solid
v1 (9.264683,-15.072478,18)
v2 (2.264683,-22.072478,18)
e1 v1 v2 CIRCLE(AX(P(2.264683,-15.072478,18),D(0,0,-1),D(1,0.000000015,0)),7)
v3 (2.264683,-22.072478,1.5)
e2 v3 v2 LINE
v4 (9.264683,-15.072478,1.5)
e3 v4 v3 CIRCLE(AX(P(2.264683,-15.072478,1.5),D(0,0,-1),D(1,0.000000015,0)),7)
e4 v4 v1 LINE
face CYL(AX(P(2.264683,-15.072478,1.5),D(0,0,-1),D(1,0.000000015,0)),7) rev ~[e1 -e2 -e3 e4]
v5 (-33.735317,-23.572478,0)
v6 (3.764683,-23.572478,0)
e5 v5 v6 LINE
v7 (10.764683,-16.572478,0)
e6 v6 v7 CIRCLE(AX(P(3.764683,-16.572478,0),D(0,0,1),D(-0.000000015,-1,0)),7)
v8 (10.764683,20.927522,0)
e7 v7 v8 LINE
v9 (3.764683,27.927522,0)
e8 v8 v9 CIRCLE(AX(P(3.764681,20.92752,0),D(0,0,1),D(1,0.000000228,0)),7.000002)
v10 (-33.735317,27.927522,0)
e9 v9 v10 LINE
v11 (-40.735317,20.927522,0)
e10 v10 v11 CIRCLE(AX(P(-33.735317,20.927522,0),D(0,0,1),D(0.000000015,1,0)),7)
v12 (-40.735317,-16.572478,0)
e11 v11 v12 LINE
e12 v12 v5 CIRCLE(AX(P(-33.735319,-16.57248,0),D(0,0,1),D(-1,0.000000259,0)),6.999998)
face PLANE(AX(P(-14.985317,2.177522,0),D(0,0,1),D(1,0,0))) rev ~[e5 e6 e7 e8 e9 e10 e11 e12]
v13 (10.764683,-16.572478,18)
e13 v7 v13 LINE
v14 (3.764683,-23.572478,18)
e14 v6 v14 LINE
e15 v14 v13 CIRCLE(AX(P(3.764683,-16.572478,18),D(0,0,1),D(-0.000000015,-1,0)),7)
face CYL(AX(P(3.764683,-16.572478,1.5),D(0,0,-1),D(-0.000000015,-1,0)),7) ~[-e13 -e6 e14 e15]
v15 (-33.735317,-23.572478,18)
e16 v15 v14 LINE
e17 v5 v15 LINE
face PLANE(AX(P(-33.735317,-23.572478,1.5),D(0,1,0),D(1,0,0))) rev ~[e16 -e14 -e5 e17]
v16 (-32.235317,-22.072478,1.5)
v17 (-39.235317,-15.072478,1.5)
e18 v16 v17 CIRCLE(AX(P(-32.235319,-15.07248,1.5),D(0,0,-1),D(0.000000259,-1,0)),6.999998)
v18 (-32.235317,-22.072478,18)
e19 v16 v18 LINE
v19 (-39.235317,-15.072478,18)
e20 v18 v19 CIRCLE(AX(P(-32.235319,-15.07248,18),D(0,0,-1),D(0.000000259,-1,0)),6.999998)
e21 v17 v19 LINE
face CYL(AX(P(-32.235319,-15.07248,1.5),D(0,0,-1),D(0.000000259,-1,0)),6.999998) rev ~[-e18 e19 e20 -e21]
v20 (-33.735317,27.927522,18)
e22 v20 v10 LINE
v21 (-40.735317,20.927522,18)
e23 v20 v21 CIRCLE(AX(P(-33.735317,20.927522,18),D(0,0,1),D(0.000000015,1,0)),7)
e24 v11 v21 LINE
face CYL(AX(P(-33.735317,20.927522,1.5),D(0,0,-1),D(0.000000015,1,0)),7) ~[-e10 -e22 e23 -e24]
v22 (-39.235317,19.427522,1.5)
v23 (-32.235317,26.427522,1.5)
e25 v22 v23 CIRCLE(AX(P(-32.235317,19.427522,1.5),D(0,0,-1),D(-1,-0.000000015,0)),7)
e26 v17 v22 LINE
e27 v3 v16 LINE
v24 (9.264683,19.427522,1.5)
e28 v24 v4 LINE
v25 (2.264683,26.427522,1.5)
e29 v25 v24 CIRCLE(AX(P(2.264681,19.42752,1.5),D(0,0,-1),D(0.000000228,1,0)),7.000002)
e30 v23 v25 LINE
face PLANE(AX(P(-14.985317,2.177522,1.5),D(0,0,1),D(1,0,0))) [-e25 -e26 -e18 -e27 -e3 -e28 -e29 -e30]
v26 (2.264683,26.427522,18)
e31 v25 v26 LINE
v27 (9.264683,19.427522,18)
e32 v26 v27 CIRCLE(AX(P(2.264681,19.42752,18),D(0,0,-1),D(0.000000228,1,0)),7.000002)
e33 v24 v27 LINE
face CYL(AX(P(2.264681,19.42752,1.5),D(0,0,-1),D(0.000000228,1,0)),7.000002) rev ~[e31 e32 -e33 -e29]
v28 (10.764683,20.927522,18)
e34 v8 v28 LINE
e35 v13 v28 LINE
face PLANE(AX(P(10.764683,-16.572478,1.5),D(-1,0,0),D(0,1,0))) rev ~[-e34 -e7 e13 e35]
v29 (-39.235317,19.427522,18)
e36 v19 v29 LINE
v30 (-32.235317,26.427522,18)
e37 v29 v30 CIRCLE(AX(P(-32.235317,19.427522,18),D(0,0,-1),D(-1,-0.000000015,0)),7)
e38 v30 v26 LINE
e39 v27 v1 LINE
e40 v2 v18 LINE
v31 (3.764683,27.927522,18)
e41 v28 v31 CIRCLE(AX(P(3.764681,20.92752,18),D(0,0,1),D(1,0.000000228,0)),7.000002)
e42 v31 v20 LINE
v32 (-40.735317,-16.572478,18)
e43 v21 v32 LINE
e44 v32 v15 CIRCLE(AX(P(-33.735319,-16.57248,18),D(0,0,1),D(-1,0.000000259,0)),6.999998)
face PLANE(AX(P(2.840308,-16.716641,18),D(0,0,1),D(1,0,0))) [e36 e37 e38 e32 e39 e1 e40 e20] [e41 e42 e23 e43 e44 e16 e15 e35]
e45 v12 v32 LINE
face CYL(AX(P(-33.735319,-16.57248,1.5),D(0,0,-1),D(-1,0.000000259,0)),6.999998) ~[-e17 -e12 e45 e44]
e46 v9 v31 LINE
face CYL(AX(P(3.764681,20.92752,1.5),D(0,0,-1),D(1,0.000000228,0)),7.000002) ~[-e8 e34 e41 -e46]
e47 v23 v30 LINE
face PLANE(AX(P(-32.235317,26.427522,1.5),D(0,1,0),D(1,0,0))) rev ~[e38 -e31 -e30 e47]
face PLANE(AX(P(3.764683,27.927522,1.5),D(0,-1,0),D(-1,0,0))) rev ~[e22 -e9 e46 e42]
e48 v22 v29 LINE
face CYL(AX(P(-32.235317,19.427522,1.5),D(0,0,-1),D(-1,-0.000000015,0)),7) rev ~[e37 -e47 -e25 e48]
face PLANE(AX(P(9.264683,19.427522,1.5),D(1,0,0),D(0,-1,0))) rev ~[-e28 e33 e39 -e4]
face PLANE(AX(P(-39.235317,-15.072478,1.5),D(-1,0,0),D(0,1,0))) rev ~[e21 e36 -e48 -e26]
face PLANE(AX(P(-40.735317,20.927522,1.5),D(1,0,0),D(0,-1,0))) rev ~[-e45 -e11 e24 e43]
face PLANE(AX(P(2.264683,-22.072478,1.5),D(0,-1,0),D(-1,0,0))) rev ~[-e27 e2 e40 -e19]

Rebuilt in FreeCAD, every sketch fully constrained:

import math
import FreeCAD as App
import Part
import Sketcher

V = App.Vector

doc = App.newDocument("Part")
params = doc.addObject("Spreadsheet::Sheet", "Params")
for row, (alias, value) in enumerate([
    ("sketch1_radius", "7 mm"),
    ("sketch1_width", "37.5 mm"),
    ("pad1_length", "1.5 mm"),
    ("sketch2_radius", "7 mm"),
    ("sketch2_width", "37.5 mm"),
    ("sketch2_width2", "34.5 mm"),
    ("pad2_length", "16.5 mm"),
], start=1):
    params.set(f"A{row}", alias)
    params.set(f"B{row}", "=" + value)
    params.setAlias(f"B{row}", alias)

body = doc.addObject("PartDesign::Body", "Body")

sketch1 = body.newObject("Sketcher::SketchObject", "Sketch")
sketch1.AttachmentSupport = (doc.getObject("XY_Plane"), [""])
sketch1.MapMode = "FlatFace"
sketch1.addGeometry([
    Part.LineSegment(V(3.764683, 27.927522, 0), V(-33.735317, 27.927522, 0)),
    Part.ArcOfCircle(Part.Circle(V(-33.735317, 20.927522, 0), V(0, 0, 1), 7), math.radians(89.999999), math.radians(180.000001)),
    Part.LineSegment(V(-40.735317, 20.927522, 0), V(-40.735317, -16.572478, 0)),
    Part.ArcOfCircle(Part.Circle(V(-33.735319, -16.57248, 0), V(0, 0, 1), 6.999998), math.radians(179.999985), math.radians(270.000015)),
    Part.LineSegment(V(-33.735317, -23.572478, 0), V(3.764683, -23.572478, 0)),
    Part.ArcOfCircle(Part.Circle(V(3.764683, -16.572478, 0), V(0, 0, 1), 7), math.radians(-90.000001), math.radians(0.000001)),
    Part.LineSegment(V(10.764683, -16.572478, 0), V(10.764683, 20.927522, 0)),
    Part.ArcOfCircle(Part.Circle(V(3.764681, 20.92752, 0), V(0, 0, 1), 7.000002), math.radians(0.000013), math.radians(89.999987)),
], False)
sketch1.addConstraint([
    Sketcher.Constraint("Tangent", 0, 2, 1, 1),
    Sketcher.Constraint("Tangent", 1, 2, 2, 1),
    Sketcher.Constraint("Tangent", 2, 2, 3, 1),
    Sketcher.Constraint("Tangent", 3, 2, 4, 1),
    Sketcher.Constraint("Tangent", 4, 2, 5, 1),
    Sketcher.Constraint("Tangent", 5, 2, 6, 1),
    Sketcher.Constraint("Tangent", 6, 2, 7, 1),
    Sketcher.Constraint("Tangent", 7, 2, 0, 1),
    Sketcher.Constraint("Horizontal", 0),
    Sketcher.Constraint("Vertical", 2),
    Sketcher.Constraint("Horizontal", 4),
    Sketcher.Constraint("Vertical", 6),
    Sketcher.Constraint("Equal", 1, 3),
    Sketcher.Constraint("Equal", 3, 5),
    Sketcher.Constraint("Equal", 5, 7),
    Sketcher.Constraint("Equal", 4, 2),
    Sketcher.Constraint("Radius", 1, 7.0),
    Sketcher.Constraint("DistanceX", 0, 2, 0, 1, 37.5),
    Sketcher.Constraint("DistanceX", 3, 3, -1, 1, 33.735319),
    Sketcher.Constraint("DistanceY", 3, 3, -1, 1, 16.57248),
])
sketch1.setExpression("Constraints[16]", "Params.sketch1_radius")
sketch1.setExpression("Constraints[17]", "Params.sketch1_width")
pad1 = body.newObject("PartDesign::Pad", "Pad")
pad1.Profile = sketch1
pad1.setExpression("Length", "Params.pad1_length")

sketch2 = body.newObject("Sketcher::SketchObject", "Sketch001")
sketch2.AttachmentSupport = (doc.getObject("XY_Plane"), [""])
sketch2.MapMode = "FlatFace"
sketch2.AttachmentOffset = App.Placement(V(0, 0, 1.5), App.Rotation())
sketch2.addGeometry([
    Part.ArcOfCircle(Part.Circle(V(-33.735317, 20.927522, 0), V(0, 0, 1), 7), math.radians(89.999999), math.radians(180.000001)),
    Part.LineSegment(V(-40.735317, 20.927522, 0), V(-40.735317, -16.572478, 0)),
    Part.ArcOfCircle(Part.Circle(V(-33.735319, -16.57248, 0), V(0, 0, 1), 6.999998), math.radians(179.999985), math.radians(270.000015)),
    Part.LineSegment(V(-33.735317, -23.572478, 0), V(3.764683, -23.572478, 0)),
    Part.ArcOfCircle(Part.Circle(V(3.764683, -16.572478, 0), V(0, 0, 1), 7), math.radians(-90.000001), math.radians(0.000001)),
    Part.LineSegment(V(10.764683, -16.572478, 0), V(10.764683, 20.927522, 0)),
    Part.ArcOfCircle(Part.Circle(V(3.764681, 20.92752, 0), V(0, 0, 1), 7.000002), math.radians(0.000013), math.radians(89.999987)),
    Part.LineSegment(V(3.764683, 27.927522, 0), V(-33.735317, 27.927522, 0)),
    Part.ArcOfCircle(Part.Circle(V(2.264683, -15.072478, 0), V(0, 0, 1), 7), math.radians(-90.000001), math.radians(0.000001)),
    Part.LineSegment(V(2.264683, -22.072478, 0), V(-32.235317, -22.072478, 0)),
    Part.ArcOfCircle(Part.Circle(V(-32.235319, -15.07248, 0), V(0, 0, 1), 6.999998), math.radians(179.999985), math.radians(270.000015)),
    Part.LineSegment(V(-39.235317, -15.072478, 0), V(-39.235317, 19.427522, 0)),
    Part.ArcOfCircle(Part.Circle(V(-32.235317, 19.427522, 0), V(0, 0, 1), 7), math.radians(89.999999), math.radians(180.000001)),
    Part.LineSegment(V(-32.235317, 26.427522, 0), V(2.264683, 26.427522, 0)),
    Part.ArcOfCircle(Part.Circle(V(2.264681, 19.42752, 0), V(0, 0, 1), 7.000002), math.radians(0.000013), math.radians(89.999987)),
    Part.LineSegment(V(9.264683, 19.427522, 0), V(9.264683, -15.072478, 0)),
], False)
sketch2.addConstraint([
    Sketcher.Constraint("Tangent", 0, 2, 1, 1),
    Sketcher.Constraint("Tangent", 1, 2, 2, 1),
    Sketcher.Constraint("Tangent", 2, 2, 3, 1),
    Sketcher.Constraint("Tangent", 3, 2, 4, 1),
    Sketcher.Constraint("Tangent", 4, 2, 5, 1),
    Sketcher.Constraint("Tangent", 5, 2, 6, 1),
    Sketcher.Constraint("Tangent", 6, 2, 7, 1),
    Sketcher.Constraint("Tangent", 7, 2, 0, 1),
    Sketcher.Constraint("Tangent", 8, 1, 9, 1),
    Sketcher.Constraint("Tangent", 9, 2, 10, 2),
    Sketcher.Constraint("Tangent", 10, 1, 11, 1),
    Sketcher.Constraint("Tangent", 11, 2, 12, 2),
    Sketcher.Constraint("Tangent", 12, 1, 13, 1),
    Sketcher.Constraint("Tangent", 13, 2, 14, 2),
    Sketcher.Constraint("Tangent", 14, 1, 15, 1),
    Sketcher.Constraint("Tangent", 15, 2, 8, 2),
    Sketcher.Constraint("Vertical", 1),
    Sketcher.Constraint("Horizontal", 3),
    Sketcher.Constraint("Vertical", 5),
    Sketcher.Constraint("Horizontal", 7),
    Sketcher.Constraint("Horizontal", 9),
    Sketcher.Constraint("Vertical", 11),
    Sketcher.Constraint("Horizontal", 13),
    Sketcher.Constraint("Vertical", 15),
    Sketcher.Constraint("Equal", 0, 2),
    Sketcher.Constraint("Equal", 2, 4),
    Sketcher.Constraint("Equal", 4, 6),
    Sketcher.Constraint("Equal", 6, 8),
    Sketcher.Constraint("Equal", 8, 10),
    Sketcher.Constraint("Equal", 10, 12),
    Sketcher.Constraint("Equal", 12, 14),
    Sketcher.Constraint("Equal", 7, 1),
    Sketcher.Constraint("Equal", 13, 11),
    Sketcher.Constraint("Radius", 0, 7.0),
    Sketcher.Constraint("DistanceX", 3, 1, 3, 2, 37.5),
    Sketcher.Constraint("DistanceX", 9, 2, 9, 1, 34.5),
    Sketcher.Constraint("DistanceY", 8, 3, 6, 3, 35.999999),
    Sketcher.Constraint("DistanceX", 2, 3, 8, 3, 36.000002),
    Sketcher.Constraint("DistanceX", 2, 3, -1, 1, 33.735319),
    Sketcher.Constraint("DistanceY", 2, 3, -1, 1, 16.57248),
])
sketch2.setExpression("Constraints[33]", "Params.sketch2_radius")
sketch2.setExpression("Constraints[34]", "Params.sketch2_width")
sketch2.setExpression("Constraints[35]", "Params.sketch2_width2")
pad2 = body.newObject("PartDesign::Pad", "Pad001")
pad2.Profile = sketch2
pad2.setExpression("Length", "Params.pad2_length")

doc.recompute()
